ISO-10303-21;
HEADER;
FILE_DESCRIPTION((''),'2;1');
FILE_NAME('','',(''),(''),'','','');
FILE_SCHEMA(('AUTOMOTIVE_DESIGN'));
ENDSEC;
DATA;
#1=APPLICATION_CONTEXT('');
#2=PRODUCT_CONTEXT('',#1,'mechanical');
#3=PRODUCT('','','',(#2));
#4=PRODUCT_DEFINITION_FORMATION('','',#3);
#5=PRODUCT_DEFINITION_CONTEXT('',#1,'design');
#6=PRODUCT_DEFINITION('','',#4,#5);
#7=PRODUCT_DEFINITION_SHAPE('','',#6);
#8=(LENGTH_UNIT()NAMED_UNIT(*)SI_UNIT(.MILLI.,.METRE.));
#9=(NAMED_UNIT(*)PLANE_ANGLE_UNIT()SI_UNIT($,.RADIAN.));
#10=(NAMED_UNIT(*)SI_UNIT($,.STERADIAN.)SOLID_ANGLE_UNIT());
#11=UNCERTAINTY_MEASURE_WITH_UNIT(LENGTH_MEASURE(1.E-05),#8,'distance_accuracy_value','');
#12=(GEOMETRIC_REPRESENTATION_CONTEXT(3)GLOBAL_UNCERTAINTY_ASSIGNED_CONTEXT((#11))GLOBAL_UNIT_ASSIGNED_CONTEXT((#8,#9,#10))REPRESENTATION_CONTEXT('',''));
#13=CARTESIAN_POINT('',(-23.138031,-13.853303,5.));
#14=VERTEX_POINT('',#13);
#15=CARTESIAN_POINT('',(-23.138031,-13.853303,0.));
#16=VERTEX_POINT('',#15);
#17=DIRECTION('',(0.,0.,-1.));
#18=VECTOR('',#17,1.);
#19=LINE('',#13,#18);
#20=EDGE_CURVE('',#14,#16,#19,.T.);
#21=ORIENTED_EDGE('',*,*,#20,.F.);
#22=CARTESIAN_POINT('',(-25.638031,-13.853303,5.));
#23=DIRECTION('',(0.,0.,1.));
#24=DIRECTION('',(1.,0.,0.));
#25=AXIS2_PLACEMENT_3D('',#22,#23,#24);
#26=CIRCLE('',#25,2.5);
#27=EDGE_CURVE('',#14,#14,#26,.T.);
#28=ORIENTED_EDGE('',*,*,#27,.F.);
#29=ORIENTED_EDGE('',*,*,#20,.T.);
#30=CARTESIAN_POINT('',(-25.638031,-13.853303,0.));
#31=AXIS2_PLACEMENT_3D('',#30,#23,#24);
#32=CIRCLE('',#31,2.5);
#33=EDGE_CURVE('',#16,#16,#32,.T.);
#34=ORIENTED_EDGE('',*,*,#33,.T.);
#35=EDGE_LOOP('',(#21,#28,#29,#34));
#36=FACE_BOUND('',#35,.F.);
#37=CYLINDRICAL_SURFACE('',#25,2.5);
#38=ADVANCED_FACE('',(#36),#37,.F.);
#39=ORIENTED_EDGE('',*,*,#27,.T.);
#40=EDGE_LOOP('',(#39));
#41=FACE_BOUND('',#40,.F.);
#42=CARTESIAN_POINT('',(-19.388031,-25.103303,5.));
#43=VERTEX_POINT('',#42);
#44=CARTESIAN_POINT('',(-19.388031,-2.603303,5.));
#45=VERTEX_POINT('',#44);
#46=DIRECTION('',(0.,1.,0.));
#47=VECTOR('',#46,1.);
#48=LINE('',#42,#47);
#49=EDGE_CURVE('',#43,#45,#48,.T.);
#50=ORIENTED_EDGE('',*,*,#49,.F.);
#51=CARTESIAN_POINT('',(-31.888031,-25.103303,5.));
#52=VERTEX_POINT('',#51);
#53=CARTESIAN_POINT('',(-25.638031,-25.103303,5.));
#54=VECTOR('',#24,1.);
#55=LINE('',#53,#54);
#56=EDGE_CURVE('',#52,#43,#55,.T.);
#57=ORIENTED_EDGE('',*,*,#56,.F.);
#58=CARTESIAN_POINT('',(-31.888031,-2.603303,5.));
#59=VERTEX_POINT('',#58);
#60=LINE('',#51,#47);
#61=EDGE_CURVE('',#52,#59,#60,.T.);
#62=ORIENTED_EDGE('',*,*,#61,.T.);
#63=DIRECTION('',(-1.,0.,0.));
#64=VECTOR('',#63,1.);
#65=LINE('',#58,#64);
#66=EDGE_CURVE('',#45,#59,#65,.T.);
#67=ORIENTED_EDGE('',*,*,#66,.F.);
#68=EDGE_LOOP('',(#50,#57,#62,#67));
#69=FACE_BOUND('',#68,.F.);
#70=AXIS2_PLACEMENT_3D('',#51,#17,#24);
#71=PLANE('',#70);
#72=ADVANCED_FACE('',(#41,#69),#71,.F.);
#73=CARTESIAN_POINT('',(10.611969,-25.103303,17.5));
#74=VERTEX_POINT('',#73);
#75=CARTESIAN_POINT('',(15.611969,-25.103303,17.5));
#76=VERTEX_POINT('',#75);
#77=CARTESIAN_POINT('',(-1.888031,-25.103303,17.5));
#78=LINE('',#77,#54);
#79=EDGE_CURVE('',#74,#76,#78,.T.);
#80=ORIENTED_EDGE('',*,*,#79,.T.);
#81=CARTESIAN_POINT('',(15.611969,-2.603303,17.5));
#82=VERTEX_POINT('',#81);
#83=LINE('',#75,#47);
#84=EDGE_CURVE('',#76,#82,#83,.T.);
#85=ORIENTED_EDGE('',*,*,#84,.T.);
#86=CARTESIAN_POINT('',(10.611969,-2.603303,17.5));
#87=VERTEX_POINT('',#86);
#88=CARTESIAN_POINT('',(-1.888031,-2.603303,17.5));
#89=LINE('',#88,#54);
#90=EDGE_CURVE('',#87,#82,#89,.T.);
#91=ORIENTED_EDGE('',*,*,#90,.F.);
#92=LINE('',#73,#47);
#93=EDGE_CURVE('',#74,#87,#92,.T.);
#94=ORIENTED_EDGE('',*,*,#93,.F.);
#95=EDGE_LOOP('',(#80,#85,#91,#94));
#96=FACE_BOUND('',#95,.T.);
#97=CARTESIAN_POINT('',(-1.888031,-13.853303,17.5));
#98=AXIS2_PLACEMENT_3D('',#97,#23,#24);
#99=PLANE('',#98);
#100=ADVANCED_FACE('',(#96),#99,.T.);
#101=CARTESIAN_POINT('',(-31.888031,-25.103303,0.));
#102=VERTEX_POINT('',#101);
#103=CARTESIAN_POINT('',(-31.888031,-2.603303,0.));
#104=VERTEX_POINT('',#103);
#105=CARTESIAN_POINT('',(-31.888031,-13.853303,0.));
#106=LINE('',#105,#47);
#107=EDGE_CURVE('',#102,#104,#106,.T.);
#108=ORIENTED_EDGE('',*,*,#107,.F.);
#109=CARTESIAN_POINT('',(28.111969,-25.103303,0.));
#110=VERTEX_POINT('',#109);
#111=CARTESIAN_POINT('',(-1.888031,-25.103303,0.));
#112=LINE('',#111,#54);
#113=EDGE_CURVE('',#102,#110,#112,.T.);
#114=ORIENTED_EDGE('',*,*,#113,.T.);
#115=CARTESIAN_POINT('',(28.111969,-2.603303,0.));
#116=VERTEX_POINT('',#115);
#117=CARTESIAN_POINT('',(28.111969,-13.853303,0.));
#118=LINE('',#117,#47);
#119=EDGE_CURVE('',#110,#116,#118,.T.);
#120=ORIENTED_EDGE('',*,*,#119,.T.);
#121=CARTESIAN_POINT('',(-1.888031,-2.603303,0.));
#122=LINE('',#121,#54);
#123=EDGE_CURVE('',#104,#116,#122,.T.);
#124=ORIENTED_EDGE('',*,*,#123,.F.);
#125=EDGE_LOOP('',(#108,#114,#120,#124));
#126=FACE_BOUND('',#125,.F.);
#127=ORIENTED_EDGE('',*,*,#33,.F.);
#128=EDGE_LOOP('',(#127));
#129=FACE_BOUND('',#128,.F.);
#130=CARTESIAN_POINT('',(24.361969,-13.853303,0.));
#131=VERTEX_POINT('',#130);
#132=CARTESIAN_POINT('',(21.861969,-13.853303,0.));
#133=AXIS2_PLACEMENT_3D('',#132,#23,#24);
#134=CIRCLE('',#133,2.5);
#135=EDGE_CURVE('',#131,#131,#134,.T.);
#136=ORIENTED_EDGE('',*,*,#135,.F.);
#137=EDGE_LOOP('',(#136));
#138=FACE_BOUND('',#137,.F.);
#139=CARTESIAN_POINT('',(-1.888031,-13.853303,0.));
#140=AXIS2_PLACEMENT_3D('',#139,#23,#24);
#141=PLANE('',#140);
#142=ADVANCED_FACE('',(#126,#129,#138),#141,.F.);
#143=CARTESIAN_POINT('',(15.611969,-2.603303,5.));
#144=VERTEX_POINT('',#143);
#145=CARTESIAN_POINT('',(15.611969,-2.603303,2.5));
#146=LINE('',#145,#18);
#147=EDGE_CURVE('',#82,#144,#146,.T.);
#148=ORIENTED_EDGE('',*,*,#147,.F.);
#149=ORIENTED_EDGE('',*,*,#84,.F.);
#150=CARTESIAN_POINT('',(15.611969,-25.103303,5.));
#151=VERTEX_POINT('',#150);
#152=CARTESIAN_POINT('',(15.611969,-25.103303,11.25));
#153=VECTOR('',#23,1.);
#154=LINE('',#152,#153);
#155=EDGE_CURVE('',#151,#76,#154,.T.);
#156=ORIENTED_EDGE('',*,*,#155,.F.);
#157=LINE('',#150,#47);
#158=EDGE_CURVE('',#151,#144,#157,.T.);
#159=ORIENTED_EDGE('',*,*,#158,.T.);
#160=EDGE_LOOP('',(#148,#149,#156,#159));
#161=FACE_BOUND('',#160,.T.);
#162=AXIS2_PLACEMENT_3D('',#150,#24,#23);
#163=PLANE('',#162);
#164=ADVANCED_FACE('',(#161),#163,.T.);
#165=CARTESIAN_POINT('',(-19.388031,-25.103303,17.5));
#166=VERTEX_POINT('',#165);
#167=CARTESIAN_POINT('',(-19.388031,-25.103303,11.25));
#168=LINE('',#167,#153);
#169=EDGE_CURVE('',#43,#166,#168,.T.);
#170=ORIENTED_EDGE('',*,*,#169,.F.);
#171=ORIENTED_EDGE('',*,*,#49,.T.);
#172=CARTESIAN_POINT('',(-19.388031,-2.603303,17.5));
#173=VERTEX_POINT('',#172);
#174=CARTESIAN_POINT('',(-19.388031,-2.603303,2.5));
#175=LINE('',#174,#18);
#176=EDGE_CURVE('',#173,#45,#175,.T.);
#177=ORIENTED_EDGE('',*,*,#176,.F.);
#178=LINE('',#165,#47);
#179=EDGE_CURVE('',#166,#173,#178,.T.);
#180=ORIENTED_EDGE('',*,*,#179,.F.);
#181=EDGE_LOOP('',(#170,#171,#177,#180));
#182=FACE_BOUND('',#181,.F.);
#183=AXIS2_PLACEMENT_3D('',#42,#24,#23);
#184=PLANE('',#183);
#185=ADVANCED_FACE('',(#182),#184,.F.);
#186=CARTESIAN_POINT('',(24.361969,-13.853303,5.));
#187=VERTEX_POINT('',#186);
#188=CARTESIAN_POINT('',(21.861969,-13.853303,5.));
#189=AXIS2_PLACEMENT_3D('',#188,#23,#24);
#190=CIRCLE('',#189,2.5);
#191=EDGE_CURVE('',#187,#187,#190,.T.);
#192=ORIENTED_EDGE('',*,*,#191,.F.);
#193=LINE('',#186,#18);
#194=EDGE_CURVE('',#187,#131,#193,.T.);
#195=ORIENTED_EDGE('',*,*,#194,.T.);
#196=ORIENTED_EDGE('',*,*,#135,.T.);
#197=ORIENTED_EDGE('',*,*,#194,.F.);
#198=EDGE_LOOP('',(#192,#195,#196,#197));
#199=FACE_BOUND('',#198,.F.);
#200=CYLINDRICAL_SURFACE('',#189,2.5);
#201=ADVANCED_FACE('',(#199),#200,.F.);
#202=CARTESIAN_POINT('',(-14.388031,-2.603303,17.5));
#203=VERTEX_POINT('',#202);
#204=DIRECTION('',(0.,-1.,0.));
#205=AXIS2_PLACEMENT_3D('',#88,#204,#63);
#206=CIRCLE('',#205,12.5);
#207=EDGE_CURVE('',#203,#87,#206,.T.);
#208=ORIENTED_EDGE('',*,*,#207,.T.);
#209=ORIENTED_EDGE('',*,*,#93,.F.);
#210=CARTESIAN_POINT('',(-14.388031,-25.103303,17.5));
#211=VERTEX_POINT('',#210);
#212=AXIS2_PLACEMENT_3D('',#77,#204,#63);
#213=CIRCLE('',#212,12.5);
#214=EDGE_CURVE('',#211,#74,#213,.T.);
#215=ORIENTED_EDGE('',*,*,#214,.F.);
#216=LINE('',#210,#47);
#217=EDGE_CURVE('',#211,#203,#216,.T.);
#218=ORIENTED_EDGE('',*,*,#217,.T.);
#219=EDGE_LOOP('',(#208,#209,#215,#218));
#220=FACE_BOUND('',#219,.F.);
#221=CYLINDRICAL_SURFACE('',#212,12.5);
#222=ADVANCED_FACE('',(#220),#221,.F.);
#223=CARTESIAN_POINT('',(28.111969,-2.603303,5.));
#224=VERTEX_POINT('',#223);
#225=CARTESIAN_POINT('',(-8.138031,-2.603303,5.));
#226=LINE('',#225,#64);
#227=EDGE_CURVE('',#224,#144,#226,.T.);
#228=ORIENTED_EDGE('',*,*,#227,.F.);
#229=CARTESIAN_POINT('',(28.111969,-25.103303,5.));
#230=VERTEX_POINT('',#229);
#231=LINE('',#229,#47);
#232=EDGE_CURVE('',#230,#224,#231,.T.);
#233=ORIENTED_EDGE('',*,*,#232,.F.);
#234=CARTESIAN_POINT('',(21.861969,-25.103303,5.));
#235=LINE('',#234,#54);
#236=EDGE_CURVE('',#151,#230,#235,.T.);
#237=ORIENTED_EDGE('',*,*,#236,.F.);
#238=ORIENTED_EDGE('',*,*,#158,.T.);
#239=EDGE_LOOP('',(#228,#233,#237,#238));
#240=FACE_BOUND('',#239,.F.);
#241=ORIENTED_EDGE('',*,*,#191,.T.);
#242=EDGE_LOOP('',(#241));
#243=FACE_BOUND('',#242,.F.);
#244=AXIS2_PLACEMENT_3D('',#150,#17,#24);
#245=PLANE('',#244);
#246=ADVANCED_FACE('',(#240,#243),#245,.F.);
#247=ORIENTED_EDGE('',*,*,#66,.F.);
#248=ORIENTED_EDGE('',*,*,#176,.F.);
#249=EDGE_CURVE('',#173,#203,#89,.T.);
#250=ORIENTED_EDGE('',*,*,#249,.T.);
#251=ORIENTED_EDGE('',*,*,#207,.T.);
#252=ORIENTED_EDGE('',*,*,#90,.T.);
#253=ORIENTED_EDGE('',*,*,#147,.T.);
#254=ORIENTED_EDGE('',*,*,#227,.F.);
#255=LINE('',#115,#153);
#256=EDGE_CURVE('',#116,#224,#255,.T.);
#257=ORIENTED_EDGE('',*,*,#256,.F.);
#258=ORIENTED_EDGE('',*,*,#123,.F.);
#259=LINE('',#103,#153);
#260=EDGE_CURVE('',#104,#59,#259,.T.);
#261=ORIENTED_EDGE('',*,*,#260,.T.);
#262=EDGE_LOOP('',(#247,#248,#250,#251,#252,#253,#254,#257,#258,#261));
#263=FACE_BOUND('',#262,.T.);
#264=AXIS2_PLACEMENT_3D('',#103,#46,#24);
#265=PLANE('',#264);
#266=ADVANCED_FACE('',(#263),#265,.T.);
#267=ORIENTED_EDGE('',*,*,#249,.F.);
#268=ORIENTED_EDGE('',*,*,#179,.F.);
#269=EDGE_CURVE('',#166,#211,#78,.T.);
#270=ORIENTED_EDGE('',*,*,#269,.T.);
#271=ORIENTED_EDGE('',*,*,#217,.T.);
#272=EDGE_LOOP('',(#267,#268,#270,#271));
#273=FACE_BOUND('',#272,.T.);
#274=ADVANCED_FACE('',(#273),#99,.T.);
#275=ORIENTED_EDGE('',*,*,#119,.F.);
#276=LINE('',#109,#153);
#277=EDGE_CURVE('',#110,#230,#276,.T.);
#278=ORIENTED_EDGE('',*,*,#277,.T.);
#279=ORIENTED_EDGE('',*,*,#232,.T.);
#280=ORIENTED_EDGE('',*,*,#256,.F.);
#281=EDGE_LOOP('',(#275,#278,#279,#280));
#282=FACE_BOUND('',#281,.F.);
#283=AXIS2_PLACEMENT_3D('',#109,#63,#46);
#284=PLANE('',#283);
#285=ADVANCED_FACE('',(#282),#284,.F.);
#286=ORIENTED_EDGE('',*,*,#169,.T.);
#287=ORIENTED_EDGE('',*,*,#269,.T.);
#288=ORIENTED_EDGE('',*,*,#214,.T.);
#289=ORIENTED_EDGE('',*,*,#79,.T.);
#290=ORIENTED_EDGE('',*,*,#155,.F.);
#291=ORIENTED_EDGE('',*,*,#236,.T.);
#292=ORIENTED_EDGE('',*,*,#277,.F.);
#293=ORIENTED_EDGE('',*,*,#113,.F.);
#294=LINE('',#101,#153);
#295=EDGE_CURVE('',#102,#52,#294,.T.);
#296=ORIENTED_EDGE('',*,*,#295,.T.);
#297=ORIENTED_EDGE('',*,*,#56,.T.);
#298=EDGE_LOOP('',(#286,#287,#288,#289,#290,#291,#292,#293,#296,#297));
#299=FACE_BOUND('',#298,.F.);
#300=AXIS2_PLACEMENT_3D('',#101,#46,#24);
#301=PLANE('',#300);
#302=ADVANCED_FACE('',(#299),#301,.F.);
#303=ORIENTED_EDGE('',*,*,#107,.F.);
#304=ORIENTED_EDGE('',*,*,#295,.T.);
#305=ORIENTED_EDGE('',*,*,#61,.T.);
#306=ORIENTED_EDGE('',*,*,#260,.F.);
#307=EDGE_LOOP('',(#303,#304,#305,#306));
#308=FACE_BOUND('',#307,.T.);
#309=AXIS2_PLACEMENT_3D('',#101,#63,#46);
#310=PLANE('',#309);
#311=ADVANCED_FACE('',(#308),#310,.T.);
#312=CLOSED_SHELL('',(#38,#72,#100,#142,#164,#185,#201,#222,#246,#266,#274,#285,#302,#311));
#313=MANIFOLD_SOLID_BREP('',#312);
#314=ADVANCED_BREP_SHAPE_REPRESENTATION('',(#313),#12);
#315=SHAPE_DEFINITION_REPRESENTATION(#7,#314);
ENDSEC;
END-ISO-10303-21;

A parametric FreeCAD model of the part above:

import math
import FreeCAD as App
import Part
import Sketcher

doc = App.newDocument("Part")
body = doc.addObject("PartDesign::Body", "Body")

# Sketch on XY plane
sketch1 = doc.addObject("Sketcher::SketchObject", "Sketch")
body.addObject(sketch1)
sketch1.AttachmentSupport = (doc.XY_Plane, [""])
sketch1.MapMode = "FlatFace"
sketch1.addGeometry([
    Part.LineSegment(App.Vector(-32, -3, 0), App.Vector(-32, -25, 0)),
    Part.LineSegment(App.Vector(-32, -25, 0), App.Vector(28, -25, 0)),
    Part.LineSegment(App.Vector(28, -25, 0), App.Vector(28, -3, 0)),
    Part.LineSegment(App.Vector(28, -3, 0), App.Vector(-32, -3, 0)),
], False)
sketch1.addConstraint([
    Sketcher.Constraint("Coincident", 0, 2, 1, 1),
    Sketcher.Constraint("Coincident", 1, 2, 2, 1),
    Sketcher.Constraint("Coincident", 2, 2, 3, 1),
    Sketcher.Constraint("Coincident", 3, 2, 0, 1),
    Sketcher.Constraint("Vertical", 0),
    Sketcher.Constraint("Horizontal", 1),
    Sketcher.Constraint("Vertical", 2),
    Sketcher.Constraint("Horizontal", 3),
    Sketcher.Constraint("DistanceX", 1, 1, 1, 2, 60.0),
    Sketcher.Constraint("DistanceY", 0, 2, 0, 1, 22.5),
    Sketcher.Constraint("DistanceX", 0, 2, -1, 1, 31.888031),
    Sketcher.Constraint("DistanceY", 0, 2, -1, 1, 25.103303),
])
pad1 = doc.addObject("PartDesign::Pad", "Pad")
body.addObject(pad1)
pad1.Profile = sketch1
pad1.Length = 17.5

# Sketch on XZ plane
sketch2 = doc.addObject("Sketcher::SketchObject", "Sketch001")
body.addObject(sketch2)
sketch2.AttachmentSupport = (doc.XZ_Plane, [""])
sketch2.MapMode = "FlatFace"
sketch2.AttachmentOffset = App.Placement(App.Vector(0, 0, 25.103303), App.Rotation())
sketch2.addGeometry([
    Part.LineSegment(App.Vector(-32, 18, 0), App.Vector(-32, 5, 0)),  # 0
    Part.LineSegment(App.Vector(-32, 5, 0), App.Vector(-19, 5, 0)),  # 1
    Part.LineSegment(App.Vector(-19, 5, 0), App.Vector(-19, 18, 0)),  # 2
    Part.LineSegment(App.Vector(-19, 18, 0), App.Vector(-32, 18, 0)),  # 3
    Part.ArcOfCircle(Part.Circle(App.Vector(-2, 18, 0), App.Vector(0, 0, 1), 12), math.radians(180), math.radians(360)),  # 4
    Part.LineSegment(App.Vector(11, 18, 0), App.Vector(-14, 18, 0)),  # 5
    Part.LineSegment(App.Vector(16, 18, 0), App.Vector(16, 5, 0)),  # 6
    Part.LineSegment(App.Vector(16, 5, 0), App.Vector(28, 5, 0)),  # 7
    Part.LineSegment(App.Vector(28, 5, 0), App.Vector(28, 18, 0)),  # 8
    Part.LineSegment(App.Vector(28, 18, 0), App.Vector(16, 18, 0)),  # 9
], False)
sketch2.addConstraint([
    Sketcher.Constraint("Coincident", 0, 2, 1, 1),
    Sketcher.Constraint("Coincident", 1, 2, 2, 1),
    Sketcher.Constraint("Coincident", 2, 2, 3, 1),
    Sketcher.Constraint("Coincident", 3, 2, 0, 1),
    Sketcher.Constraint("Coincident", 4, 1, 5, 2),
    Sketcher.Constraint("Coincident", 5, 1, 4, 2),
    Sketcher.Constraint("Coincident", 6, 2, 7, 1),
    Sketcher.Constraint("Coincident", 7, 2, 8, 1),
    Sketcher.Constraint("Coincident", 8, 2, 9, 1),
    Sketcher.Constraint("Coincident", 9, 2, 6, 1),
    Sketcher.Constraint("Vertical", 0),
    Sketcher.Constraint("Horizontal", 1),
    Sketcher.Constraint("Vertical", 2),
    Sketcher.Constraint("Horizontal", 3),
    Sketcher.Constraint("Horizontal", 5),
    Sketcher.Constraint("Vertical", 6),
    Sketcher.Constraint("Horizontal", 7),
    Sketcher.Constraint("Vertical", 8),
    Sketcher.Constraint("Horizontal", 9),
    Sketcher.Constraint("Horizontal", 4, 3, 2, 2),
    Sketcher.Constraint("Horizontal", 3, 2, 4, 1),
    Sketcher.Constraint("Horizontal", 1, 2, 6, 2),
    Sketcher.Constraint("Horizontal", 5, 1, 8, 2),
    Sketcher.Constraint("Equal", 3, 7),
    Sketcher.Constraint("Equal", 9, 0),
    Sketcher.Constraint("Radius", 4, 12.5),
    Sketcher.Constraint("DistanceX", 1, 1, 1, 2, 12.5),
    Sketcher.Constraint("DistanceY", -1, 1, 0, 2, 5.0),
    Sketcher.Constraint("DistanceX", 0, 2, 4, 3, 30.0),
    Sketcher.Constraint("DistanceX", 5, 1, 6, 2, 5.0),
    Sketcher.Constraint("DistanceX", 4, 3, -1, 1, 1.888031),
])
pocket1 = doc.addObject("PartDesign::Pocket", "Pocket")
body.addObject(pocket1)
pocket1.Profile = sketch2
pocket1.Type = "ThroughAll"

# Sketch on XY plane
sketch3 = doc.addObject("Sketcher::SketchObject", "Sketch002")
body.addObject(sketch3)
sketch3.AttachmentSupport = (doc.XY_Plane, [""])
sketch3.MapMode = "FlatFace"
sketch3.AttachmentOffset = App.Placement(App.Vector(0, 0, 5), App.Rotation())
sketch3.addGeometry(Part.Circle(App.Vector(21.9, -13.9, 0), App.Vector(0, 0, 1), 2.5), False)
sketch3.addConstraint([
    Sketcher.Constraint("Diameter", 0, 5.0),
    Sketcher.Constraint("DistanceX", -1, 1, 0, 3, 21.861969),
    Sketcher.Constraint("DistanceY", 0, 3, -1, 1, 13.853303),
])
pocket2 = doc.addObject("PartDesign::Pocket", "Pocket001")
body.addObject(pocket2)
pocket2.Profile = sketch3
pocket2.Type = "ThroughAll"

# Sketch on XY plane
sketch4 = doc.addObject("Sketcher::SketchObject", "Sketch003")
body.addObject(sketch4)
sketch4.AttachmentSupport = (doc.XY_Plane, [""])
sketch4.MapMode = "FlatFace"
sketch4.AttachmentOffset = App.Placement(App.Vector(0, 0, 5), App.Rotation())
sketch4.addGeometry(Part.Circle(App.Vector(-25.6, -13.9, 0), App.Vector(0, 0, 1), 2.5), False)
sketch4.addConstraint([
    Sketcher.Constraint("Diameter", 0, 5.0),
    Sketcher.Constraint("DistanceX", 0, 3, -1, 1, 25.638031),
    Sketcher.Constraint("DistanceY", 0, 3, -1, 1, 13.853303),
])
pocket3 = doc.addObject("PartDesign::Pocket", "Pocket002")
body.addObject(pocket3)
pocket3.Profile = sketch4
pocket3.Type = "ThroughAll"

doc.recompute()
